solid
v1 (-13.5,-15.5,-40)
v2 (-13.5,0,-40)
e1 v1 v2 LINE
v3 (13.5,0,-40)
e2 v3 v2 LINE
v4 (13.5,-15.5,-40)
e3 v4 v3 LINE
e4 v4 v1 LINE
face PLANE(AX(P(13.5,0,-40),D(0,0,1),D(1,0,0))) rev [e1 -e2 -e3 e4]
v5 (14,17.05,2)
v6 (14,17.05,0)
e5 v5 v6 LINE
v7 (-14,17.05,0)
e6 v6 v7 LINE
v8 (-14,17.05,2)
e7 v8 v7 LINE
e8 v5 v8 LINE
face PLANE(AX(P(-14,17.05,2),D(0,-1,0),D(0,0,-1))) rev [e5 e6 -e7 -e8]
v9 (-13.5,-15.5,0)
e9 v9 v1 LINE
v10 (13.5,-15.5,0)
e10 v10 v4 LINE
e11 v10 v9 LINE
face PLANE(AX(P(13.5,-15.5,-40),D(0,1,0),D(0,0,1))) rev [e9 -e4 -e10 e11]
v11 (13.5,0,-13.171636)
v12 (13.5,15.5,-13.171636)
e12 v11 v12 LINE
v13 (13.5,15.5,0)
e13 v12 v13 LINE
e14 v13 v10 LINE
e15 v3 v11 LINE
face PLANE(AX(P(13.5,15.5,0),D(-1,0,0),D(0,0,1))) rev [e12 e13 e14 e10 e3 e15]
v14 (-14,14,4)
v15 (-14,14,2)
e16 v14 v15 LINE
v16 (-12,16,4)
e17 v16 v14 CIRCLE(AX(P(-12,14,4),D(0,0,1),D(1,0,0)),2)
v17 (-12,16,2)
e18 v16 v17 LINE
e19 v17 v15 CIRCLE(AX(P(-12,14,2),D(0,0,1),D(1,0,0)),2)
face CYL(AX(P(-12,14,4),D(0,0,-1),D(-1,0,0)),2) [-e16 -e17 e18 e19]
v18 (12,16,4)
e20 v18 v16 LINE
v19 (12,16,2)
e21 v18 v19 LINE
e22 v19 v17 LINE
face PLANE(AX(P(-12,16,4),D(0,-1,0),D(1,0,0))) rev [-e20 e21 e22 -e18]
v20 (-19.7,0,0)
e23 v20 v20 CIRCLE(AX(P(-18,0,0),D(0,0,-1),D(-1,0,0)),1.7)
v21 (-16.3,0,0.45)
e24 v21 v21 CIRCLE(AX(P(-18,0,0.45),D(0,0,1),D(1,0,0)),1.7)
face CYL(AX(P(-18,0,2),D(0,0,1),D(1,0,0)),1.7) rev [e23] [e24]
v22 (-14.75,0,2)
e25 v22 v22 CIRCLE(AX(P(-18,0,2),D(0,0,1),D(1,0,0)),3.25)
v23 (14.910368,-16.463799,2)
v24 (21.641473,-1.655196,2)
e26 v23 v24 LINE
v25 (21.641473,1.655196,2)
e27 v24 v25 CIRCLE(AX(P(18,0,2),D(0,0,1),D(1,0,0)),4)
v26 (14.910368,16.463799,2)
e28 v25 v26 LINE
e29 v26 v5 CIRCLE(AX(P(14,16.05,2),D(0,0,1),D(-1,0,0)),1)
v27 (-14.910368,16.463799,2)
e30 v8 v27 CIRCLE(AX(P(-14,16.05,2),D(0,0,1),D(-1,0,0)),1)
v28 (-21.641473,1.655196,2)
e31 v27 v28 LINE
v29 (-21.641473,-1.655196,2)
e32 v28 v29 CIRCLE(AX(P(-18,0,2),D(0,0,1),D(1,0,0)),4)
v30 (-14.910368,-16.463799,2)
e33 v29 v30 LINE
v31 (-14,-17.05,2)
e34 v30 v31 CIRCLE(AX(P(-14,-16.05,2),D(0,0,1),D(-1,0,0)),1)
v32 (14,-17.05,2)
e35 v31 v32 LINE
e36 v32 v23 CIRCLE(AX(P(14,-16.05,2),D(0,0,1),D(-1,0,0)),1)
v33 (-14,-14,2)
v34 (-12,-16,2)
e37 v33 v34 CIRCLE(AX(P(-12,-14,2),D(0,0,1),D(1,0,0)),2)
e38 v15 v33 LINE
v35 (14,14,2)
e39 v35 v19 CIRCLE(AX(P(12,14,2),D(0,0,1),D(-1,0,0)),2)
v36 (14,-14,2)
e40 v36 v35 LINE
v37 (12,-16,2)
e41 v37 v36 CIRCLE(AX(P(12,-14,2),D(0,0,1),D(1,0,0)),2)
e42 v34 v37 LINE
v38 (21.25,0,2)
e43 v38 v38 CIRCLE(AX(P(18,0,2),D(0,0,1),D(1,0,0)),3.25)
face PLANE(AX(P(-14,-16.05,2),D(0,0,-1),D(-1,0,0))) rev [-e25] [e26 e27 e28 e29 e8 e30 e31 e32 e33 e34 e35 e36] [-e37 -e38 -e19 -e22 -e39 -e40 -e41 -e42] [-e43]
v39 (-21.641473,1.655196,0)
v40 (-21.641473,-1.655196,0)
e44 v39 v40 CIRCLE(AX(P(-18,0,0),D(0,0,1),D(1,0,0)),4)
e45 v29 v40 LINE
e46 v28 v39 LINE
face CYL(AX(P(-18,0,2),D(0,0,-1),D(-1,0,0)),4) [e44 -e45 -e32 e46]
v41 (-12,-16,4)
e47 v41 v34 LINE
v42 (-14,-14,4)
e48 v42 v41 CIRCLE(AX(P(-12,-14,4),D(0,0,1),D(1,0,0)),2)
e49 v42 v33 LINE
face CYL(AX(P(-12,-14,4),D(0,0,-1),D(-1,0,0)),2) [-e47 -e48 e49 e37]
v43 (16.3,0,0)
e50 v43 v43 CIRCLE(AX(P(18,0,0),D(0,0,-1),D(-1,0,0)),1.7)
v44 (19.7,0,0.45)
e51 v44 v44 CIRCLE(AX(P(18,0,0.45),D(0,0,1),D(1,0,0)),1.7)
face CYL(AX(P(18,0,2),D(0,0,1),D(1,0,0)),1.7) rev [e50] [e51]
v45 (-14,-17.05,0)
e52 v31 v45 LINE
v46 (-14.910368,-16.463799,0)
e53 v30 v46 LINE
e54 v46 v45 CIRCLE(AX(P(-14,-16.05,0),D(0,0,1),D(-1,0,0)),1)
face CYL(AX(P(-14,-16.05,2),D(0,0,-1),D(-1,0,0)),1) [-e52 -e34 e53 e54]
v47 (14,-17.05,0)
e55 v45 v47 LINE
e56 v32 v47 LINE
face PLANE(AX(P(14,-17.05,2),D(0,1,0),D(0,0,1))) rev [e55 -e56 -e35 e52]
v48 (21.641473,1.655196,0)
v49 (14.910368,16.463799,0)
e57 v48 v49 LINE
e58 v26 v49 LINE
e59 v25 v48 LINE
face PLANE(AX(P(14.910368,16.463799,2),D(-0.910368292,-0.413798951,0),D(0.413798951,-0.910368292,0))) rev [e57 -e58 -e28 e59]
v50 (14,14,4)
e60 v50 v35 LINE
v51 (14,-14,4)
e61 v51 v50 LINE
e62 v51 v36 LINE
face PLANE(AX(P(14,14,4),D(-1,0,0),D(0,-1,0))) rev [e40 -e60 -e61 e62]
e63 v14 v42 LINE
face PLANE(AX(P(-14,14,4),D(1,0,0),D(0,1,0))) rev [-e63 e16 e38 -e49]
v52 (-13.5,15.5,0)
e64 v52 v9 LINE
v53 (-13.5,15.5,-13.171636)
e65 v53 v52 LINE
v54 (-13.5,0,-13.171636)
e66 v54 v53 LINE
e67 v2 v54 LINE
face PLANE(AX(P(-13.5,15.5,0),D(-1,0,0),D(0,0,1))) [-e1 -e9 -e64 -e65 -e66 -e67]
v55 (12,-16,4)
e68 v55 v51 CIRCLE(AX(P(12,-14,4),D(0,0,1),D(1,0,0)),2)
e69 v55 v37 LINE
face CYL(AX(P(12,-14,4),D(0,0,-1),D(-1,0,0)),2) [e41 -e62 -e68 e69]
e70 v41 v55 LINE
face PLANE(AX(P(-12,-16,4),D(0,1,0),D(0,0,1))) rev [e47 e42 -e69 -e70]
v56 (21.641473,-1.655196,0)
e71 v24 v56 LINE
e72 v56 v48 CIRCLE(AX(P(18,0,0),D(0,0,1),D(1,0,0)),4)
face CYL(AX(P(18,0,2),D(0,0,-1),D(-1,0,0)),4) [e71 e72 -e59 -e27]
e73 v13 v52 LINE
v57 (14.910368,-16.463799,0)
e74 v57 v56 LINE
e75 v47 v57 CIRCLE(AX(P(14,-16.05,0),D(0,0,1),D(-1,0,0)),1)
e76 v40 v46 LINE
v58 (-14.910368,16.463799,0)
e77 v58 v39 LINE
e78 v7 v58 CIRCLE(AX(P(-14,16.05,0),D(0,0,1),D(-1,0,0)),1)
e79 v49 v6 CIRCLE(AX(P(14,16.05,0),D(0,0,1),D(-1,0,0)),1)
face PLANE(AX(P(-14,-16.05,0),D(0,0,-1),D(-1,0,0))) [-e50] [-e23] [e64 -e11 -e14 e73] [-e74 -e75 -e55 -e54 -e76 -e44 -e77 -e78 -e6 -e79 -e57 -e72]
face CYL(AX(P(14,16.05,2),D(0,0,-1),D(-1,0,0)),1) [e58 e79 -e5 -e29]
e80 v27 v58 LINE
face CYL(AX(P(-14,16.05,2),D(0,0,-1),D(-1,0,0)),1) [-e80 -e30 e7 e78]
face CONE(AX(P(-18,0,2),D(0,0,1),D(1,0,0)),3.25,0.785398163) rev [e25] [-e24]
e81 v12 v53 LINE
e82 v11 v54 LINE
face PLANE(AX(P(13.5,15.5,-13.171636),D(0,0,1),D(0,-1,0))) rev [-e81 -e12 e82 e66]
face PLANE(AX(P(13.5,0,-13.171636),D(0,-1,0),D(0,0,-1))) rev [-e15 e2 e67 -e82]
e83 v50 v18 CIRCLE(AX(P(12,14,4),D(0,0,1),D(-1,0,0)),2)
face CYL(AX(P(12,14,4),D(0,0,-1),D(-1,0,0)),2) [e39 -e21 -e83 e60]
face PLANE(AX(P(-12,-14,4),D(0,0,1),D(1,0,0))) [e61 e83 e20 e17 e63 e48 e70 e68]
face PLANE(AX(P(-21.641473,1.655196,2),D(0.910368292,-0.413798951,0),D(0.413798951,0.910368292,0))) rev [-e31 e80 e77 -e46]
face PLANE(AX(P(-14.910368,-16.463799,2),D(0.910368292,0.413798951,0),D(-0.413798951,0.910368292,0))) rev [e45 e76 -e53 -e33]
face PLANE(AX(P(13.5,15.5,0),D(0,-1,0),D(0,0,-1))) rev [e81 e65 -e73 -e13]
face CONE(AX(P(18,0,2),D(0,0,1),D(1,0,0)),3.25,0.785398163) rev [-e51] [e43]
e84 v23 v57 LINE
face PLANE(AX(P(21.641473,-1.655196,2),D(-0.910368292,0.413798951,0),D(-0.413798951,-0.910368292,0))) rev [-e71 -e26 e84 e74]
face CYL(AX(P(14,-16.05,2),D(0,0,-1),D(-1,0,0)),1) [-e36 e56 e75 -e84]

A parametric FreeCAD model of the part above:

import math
import FreeCAD as App
import Part
import Sketcher

V = App.Vector
Q = App.Units.Quantity

doc = App.newDocument("Part")
body = doc.addObject("PartDesign::Body", "Body")

sketch1 = doc.addObject("Sketcher::SketchObject", "Sketch")
body.addObject(sketch1)
sketch1.AttachmentSupport = (doc.XY_Plane, [""])
sketch1.MapMode = "FlatFace"
sketch1.addGeometry([
    Part.LineSegment(V(-14.9, 16.5, 0), V(-21.6, 1.7, 0)),
    Part.ArcOfCircle(Part.Circle(V(-18, 0, 0), V(0, 0, 1), 4), math.radians(156), math.radians(204)),
    Part.LineSegment(V(-21.6, -1.7, 0), V(-14.9, -16.5, 0)),
    Part.ArcOfCircle(Part.Circle(V(-14, -16.1, 0), V(0, 0, 1), 1), math.radians(-156), math.radians(-90)),
    Part.LineSegment(V(-14, -17.1, 0), V(14, -17.1, 0)),
    Part.ArcOfCircle(Part.Circle(V(14, -16.1, 0), V(0, 0, 1), 1), math.radians(-90), math.radians(-24)),
    Part.LineSegment(V(14.9, -16.5, 0), V(21.6, -1.7, 0)),
    Part.ArcOfCircle(Part.Circle(V(18, 0, 0), V(0, 0, 1), 4), math.radians(-24), math.radians(24)),
    Part.LineSegment(V(21.6, 1.7, 0), V(14.9, 16.5, 0)),
    Part.ArcOfCircle(Part.Circle(V(14, 16.1, 0), V(0, 0, 1), 1), math.radians(24), math.radians(90)),
    Part.LineSegment(V(14, 17.1, 0), V(-14, 17.1, 0)),
    Part.ArcOfCircle(Part.Circle(V(-14, 16.1, 0), V(0, 0, 1), 1), math.radians(90), math.radians(156)),
    Part.Circle(V(18, 0, 0), V(0, 0, 1), 1.5),
    Part.Circle(V(-18, 0, 0), V(0, 0, 1), 1.5),
], False)
sketch1.addConstraint([
    Sketcher.Constraint("Tangent", 0, 2, 1, 1),
    Sketcher.Constraint("Tangent", 1, 2, 2, 1),
    Sketcher.Constraint("Tangent", 2, 2, 3, 1),
    Sketcher.Constraint("Tangent", 3, 2, 4, 1),
    Sketcher.Constraint("Tangent", 4, 2, 5, 1),
    Sketcher.Constraint("Tangent", 5, 2, 6, 1),
    Sketcher.Constraint("Tangent", 6, 2, 7, 1),
    Sketcher.Constraint("Tangent", 7, 2, 8, 1),
    Sketcher.Constraint("Tangent", 8, 2, 9, 1),
    Sketcher.Constraint("Tangent", 9, 2, 10, 1),
    Sketcher.Constraint("Tangent", 10, 2, 11, 1),
    Sketcher.Constraint("Tangent", 11, 2, 0, 1),
    Sketcher.Constraint("Horizontal", 4),
    Sketcher.Constraint("Horizontal", 10),
    Sketcher.Constraint("Coincident", 12, 3, 7, 3),
    Sketcher.Constraint("Coincident", 13, 3, 1, 3),
    Sketcher.Constraint("Equal", 3, 5),
    Sketcher.Constraint("Equal", 1, 7),
    Sketcher.Constraint("Equal", 5, 9),
    Sketcher.Constraint("Equal", 9, 11),
    Sketcher.Constraint("Equal", 12, 13),
    Sketcher.Constraint("Symmetric", 1, 3, 7, 3, -1, 1),
    Sketcher.Constraint("Symmetric", 3, 3, 9, 3, -1, 1),
    Sketcher.Constraint("Symmetric", 2, 2, 5, 2, -2),
    Sketcher.Constraint("Parallel", 0, 6),
    Sketcher.Constraint("Diameter", 12, Q("3 mm")),
    Sketcher.Constraint("Radius", 1, Q("4 mm")),
    Sketcher.Constraint("Radius", 3, Q("1 mm")),
    Sketcher.Constraint("DistanceX", 4, 1, 4, 2, Q("28 mm")),
    Sketcher.Constraint("DistanceX", 1, 3, -1, 1, Q("18 mm")),
    Sketcher.Constraint("DistanceY", 5, 3, 9, 3, Q("32.1 mm")),
])
pad1 = doc.addObject("PartDesign::Pad", "Pad")
body.addObject(pad1)
pad1.Profile = sketch1
pad1.Length = 2

sketch2 = doc.addObject("Sketcher::SketchObject", "Sketch001")
body.addObject(sketch2)
sketch2.AttachmentSupport = (doc.XY_Plane, [""])
sketch2.MapMode = "FlatFace"
sketch2.AttachmentOffset = App.Placement(V(0, 0, 2), App.Rotation())
sketch2.addGeometry([
    Part.LineSegment(V(12, 16, 0), V(-12, 16, 0)),
    Part.ArcOfCircle(Part.Circle(V(-12, 14, 0), V(0, 0, 1), 2), math.radians(90), math.radians(180)),
    Part.LineSegment(V(-14, 14, 0), V(-14, -14, 0)),
    Part.ArcOfCircle(Part.Circle(V(-12, -14, 0), V(0, 0, 1), 2), math.radians(-180), math.radians(-90)),
    Part.LineSegment(V(-12, -16, 0), V(12, -16, 0)),
    Part.ArcOfCircle(Part.Circle(V(12, -14, 0), V(0, 0, 1), 2), math.radians(-90), math.radians(0)),
    Part.LineSegment(V(14, -14, 0), V(14, 14, 0)),
    Part.ArcOfCircle(Part.Circle(V(12, 14, 0), V(0, 0, 1), 2), math.radians(0), math.radians(90)),
], False)
sketch2.addConstraint([
    Sketcher.Constraint("Tangent", 0, 2, 1, 1),
    Sketcher.Constraint("Tangent", 1, 2, 2, 1),
    Sketcher.Constraint("Tangent", 2, 2, 3, 1),
    Sketcher.Constraint("Tangent", 3, 2, 4, 1),
    Sketcher.Constraint("Tangent", 4, 2, 5, 1),
    Sketcher.Constraint("Tangent", 5, 2, 6, 1),
    Sketcher.Constraint("Tangent", 6, 2, 7, 1),
    Sketcher.Constraint("Tangent", 7, 2, 0, 1),
    Sketcher.Constraint("Horizontal", 0),
    Sketcher.Constraint("Vertical", 2),
    Sketcher.Constraint("Horizontal", 4),
    Sketcher.Constraint("Vertical", 6),
    Sketcher.Constraint("Equal", 1, 3),
    Sketcher.Constraint("Equal", 3, 5),
    Sketcher.Constraint("Equal", 5, 7),
    Sketcher.Constraint("Symmetric", 1, 3, 5, 3, -1, 1),
    Sketcher.Constraint("Radius", 1, Q("2 mm")),
    Sketcher.Constraint("DistanceX", 0, 2, 0, 1, Q("24 mm")),
    Sketcher.Constraint("DistanceY", 2, 2, 2, 1, Q("28 mm")),
])
pad2 = doc.addObject("PartDesign::Pad", "Pad001")
body.addObject(pad2)
pad2.Profile = sketch2
pad2.Length = 2

sketch3 = doc.addObject("Sketcher::SketchObject", "Sketch002")
body.addObject(sketch3)
sketch3.AttachmentSupport = (doc.YZ_Plane, [""])
sketch3.MapMode = "FlatFace"
sketch3.addGeometry([
    Part.LineSegment(V(16, -13, 0), V(16, 0, 0)),
    Part.LineSegment(V(16, 0, 0), V(-16, 0, 0)),
    Part.LineSegment(V(-16, 0, 0), V(-16, -40, 0)),
    Part.LineSegment(V(-16, -40, 0), V(0, -40, 0)),
    Part.LineSegment(V(0, -40, 0), V(0, -13, 0)),
    Part.LineSegment(V(0, -13, 0), V(16, -13, 0)),
], False)
sketch3.addConstraint([
    Sketcher.Constraint("Coincident", 0, 2, 1, 1),
    Sketcher.Constraint("Coincident", 1, 2, 2, 1),
    Sketcher.Constraint("Coincident", 2, 2, 3, 1),
    Sketcher.Constraint("Coincident", 3, 2, 4, 1),
    Sketcher.Constraint("Coincident", 4, 2, 5, 1),
    Sketcher.Constraint("Coincident", 5, 2, 0, 1),
    Sketcher.Constraint("Vertical", 0),
    Sketcher.Constraint("Horizontal", 1),
    Sketcher.Constraint("Vertical", 2),
    Sketcher.Constraint("Horizontal", 3),
    Sketcher.Constraint("Vertical", 4),
    Sketcher.Constraint("Horizontal", 5),
    Sketcher.Constraint("Symmetric", 0, 2, 1, 2, -1, 1),
    Sketcher.Constraint("PointOnObject", 3, 2, -2),
    Sketcher.Constraint("DistanceX", 1, 2, 1, 1, Q("31 mm")),
    Sketcher.Constraint("DistanceY", 2, 2, 2, 1, Q("40 mm")),
    Sketcher.Constraint("DistanceY", 0, 1, 0, 2, Q("13.171636 mm")),
])
pad3 = doc.addObject("PartDesign::Pad", "Pad002")
body.addObject(pad3)
pad3.Profile = sketch3
pad3.Length = 27
pad3.Midplane = True

sketch4 = doc.addObject("Sketcher::SketchObject", "Sketch003")
body.addObject(sketch4)
sketch4.AttachmentSupport = (doc.XY_Plane, [""])
sketch4.MapMode = "FlatFace"
sketch4.AttachmentOffset = App.Placement(V(0, 0, 2), App.Rotation())
sketch4.addGeometry([
    Part.Circle(V(-18, 0, 0), V(0, 0, 1), 1.7),
    Part.Circle(V(18, 0, 0), V(0, 0, 1), 1.7),
], False)
sketch4.addConstraint([
    Sketcher.Constraint("Equal", 0, 1),
    Sketcher.Constraint("Symmetric", 0, 3, 1, 3, -1, 1),
    Sketcher.Constraint("PointOnObject", 0, 3, -1),
    Sketcher.Constraint("Diameter", 0, Q("3.4 mm")),
    Sketcher.Constraint("DistanceX", 0, 3, -1, 1, Q("18 mm")),
])
doc.recompute()
hole = doc.addObject("PartDesign::Hole", "Hole")
body.addObject(hole)
hole.Profile = sketch4
hole.ThreadType = "None"
hole.Diameter = 3.4
hole.DepthType = "ThroughAll"
hole.HoleCutType = "Countersink"
hole.HoleCutDiameter = 6.5
hole.HoleCutCountersinkAngle = 90

doc.recompute()
